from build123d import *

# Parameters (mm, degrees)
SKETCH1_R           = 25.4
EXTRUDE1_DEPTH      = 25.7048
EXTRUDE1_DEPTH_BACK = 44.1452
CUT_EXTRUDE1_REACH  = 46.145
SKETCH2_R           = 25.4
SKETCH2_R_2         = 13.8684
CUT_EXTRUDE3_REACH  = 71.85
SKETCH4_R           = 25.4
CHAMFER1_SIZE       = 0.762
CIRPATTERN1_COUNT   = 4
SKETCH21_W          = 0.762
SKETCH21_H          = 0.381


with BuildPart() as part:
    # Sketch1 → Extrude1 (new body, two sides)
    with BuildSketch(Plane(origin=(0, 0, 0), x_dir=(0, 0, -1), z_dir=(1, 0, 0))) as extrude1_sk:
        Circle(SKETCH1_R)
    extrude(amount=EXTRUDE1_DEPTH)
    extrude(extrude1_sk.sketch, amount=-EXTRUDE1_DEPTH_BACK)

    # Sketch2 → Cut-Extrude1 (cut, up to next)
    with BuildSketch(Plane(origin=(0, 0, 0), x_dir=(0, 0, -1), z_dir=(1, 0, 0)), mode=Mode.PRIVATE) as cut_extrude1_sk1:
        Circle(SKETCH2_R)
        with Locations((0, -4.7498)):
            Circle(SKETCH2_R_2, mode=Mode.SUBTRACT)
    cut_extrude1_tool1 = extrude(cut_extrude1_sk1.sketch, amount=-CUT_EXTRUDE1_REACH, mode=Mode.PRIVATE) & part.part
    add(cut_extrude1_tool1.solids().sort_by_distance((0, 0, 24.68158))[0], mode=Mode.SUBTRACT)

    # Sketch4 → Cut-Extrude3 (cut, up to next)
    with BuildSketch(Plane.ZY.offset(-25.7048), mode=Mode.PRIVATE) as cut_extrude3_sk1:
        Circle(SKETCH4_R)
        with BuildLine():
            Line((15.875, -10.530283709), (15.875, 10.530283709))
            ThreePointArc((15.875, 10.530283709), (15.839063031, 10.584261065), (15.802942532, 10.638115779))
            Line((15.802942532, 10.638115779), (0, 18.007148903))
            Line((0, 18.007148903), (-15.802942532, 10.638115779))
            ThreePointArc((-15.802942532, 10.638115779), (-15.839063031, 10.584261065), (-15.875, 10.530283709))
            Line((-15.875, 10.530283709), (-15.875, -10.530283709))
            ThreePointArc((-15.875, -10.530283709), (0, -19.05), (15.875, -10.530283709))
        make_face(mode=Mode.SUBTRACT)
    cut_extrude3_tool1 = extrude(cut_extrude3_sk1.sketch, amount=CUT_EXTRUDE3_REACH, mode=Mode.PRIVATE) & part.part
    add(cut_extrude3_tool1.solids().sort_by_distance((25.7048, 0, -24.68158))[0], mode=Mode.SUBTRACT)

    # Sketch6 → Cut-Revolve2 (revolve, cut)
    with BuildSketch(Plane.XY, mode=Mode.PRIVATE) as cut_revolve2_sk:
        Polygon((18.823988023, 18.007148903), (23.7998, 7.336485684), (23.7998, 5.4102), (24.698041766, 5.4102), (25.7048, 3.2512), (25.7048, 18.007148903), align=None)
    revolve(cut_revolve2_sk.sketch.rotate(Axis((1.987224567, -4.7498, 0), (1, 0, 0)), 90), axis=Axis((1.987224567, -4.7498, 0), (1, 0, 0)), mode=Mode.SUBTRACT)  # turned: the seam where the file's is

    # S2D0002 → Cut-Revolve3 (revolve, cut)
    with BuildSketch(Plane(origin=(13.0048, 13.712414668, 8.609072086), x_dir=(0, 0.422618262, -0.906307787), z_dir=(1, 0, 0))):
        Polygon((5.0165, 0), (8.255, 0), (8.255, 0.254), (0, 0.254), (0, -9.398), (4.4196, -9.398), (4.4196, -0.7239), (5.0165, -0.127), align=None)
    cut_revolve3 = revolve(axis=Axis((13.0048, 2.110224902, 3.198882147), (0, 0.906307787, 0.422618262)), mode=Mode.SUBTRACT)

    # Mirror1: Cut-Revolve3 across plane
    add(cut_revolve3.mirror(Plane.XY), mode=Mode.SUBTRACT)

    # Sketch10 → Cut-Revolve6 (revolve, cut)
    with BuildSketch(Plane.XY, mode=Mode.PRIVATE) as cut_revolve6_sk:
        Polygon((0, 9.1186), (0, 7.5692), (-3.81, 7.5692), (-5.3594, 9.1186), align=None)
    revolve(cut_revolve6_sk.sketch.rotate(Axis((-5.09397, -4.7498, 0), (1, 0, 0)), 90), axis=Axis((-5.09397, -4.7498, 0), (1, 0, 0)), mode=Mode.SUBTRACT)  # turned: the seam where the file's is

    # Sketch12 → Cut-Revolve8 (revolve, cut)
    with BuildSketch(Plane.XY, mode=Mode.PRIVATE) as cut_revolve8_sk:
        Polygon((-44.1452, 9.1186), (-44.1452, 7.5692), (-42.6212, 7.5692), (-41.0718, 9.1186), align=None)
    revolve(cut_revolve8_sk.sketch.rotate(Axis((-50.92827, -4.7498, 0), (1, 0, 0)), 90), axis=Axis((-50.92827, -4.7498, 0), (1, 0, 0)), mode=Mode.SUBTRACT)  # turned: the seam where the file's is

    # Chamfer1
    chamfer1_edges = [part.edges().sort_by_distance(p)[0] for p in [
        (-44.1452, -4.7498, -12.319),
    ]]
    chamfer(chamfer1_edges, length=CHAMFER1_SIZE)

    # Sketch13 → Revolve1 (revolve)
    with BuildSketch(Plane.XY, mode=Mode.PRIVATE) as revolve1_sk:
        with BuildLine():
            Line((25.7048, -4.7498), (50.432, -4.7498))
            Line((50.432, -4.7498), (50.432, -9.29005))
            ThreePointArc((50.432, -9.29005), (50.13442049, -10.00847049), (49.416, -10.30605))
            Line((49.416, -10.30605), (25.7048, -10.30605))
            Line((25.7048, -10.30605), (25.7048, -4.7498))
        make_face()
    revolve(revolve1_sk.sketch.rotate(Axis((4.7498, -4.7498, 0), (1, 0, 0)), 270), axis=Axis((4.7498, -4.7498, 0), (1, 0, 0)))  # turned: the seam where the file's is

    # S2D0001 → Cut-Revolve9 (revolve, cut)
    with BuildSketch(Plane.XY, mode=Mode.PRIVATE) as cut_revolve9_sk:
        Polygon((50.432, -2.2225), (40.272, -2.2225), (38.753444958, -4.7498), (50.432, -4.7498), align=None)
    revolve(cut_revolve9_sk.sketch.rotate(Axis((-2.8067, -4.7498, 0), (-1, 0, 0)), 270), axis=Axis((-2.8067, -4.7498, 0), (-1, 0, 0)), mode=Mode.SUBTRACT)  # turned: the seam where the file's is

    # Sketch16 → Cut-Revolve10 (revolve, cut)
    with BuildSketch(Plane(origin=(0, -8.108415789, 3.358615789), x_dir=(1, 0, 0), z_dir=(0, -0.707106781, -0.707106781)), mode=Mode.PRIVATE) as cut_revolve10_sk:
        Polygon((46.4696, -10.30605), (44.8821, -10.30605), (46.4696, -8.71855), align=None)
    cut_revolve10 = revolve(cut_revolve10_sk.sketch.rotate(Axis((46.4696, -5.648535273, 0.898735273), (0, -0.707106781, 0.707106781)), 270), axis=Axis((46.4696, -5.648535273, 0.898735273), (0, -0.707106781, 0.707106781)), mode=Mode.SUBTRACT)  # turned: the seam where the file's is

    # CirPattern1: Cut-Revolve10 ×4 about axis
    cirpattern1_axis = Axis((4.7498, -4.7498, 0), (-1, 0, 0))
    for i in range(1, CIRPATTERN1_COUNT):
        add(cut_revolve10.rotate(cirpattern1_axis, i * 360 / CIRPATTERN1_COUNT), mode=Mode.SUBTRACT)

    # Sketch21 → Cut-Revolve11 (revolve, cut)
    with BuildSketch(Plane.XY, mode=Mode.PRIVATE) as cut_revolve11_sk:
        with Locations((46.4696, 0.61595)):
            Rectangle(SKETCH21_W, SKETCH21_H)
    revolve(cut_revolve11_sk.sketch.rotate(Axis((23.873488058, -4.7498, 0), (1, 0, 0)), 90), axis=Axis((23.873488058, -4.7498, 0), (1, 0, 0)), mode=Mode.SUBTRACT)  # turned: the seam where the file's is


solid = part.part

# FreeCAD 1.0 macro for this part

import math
import FreeCAD as App
import Part
import Sketcher
from FreeCAD import Vector
Q = App.Units.Quantity


def edges_at(feature, points):
    """Names of the edges that pass closest to the given points."""
    edges = feature.Shape.Edges
    near = lambda p: min(range(len(edges)), key=lambda i: edges[i].distToShape(Part.Vertex(*p))[0])
    return sorted({f"Edge{near(p) + 1}" for p in points})


def add_polygon(sketch, points):
    """Adds a closed chain of lines whose ends are joined by coincident constraints."""
    first, n = sketch.GeometryCount, len(points)
    for a, b in zip(points, points[1:] + points[:1]):
        sketch.addGeometry(Part.LineSegment(App.Vector(*a, 0), App.Vector(*b, 0)), False)
    for i in range(n):
        sketch.addConstraint(Sketcher.Constraint("Coincident", first + i, 2, first + (i + 1) % n, 1))

doc = App.newDocument("Part")
params = doc.addObject("Spreadsheet::Sheet", "Params")
for row, (alias, value) in enumerate([
    ("sketch1_diameter", "2 in"),
    ("pad1_length", "1.012 in"),
    ("pad1_length2", "1.738 in"),
    ("sketch2_diameter", "2 in"),
    ("sketch2_diameter2", "1.092 in"),
    ("sketch3_diameter", "2 in"),
    ("sketch3_radius", "0.75 in"),
    ("groove_angle", "360 deg"),
    ("sketch5_length", "0.01 in"),
    ("sketch5_length2", "0.38 in"),
    ("sketch5_length3", "0.325 in"),
    ("sketch5_length4", "0.174 in"),
    ("sketch5_length5", "0.005 in"),
    ("groove2_angle", "360 deg"),
    ("sketch6_width", "0.15 in"),
    ("sketch6_width2", "0.211 in"),
    ("groove3_angle", "360 deg"),
    ("sketch7_width", "0.06 in"),
    ("sketch7_width2", "0.121 in"),
    ("groove4_angle", "360 deg"),
    ("chamfer_size", "0.03 in"),
    ("sketch8_radius", "0.04 in"),
    ("sketch8_height", "0.21875 in"),
    ("revolution_angle", "360 deg"),
    ("sketch9_width", "0.4 in"),
    ("groove5_angle", "360 deg"),
    ("sketch10_width", "0.0625 in"),
    ("groove6_angle", "360 deg"),
    ("sketch11_width", "0.03 in"),
    ("sketch11_height", "0.015 in"),
    ("groove7_angle", "360 deg"),
], start=1):
    params.set(f"A{row}", alias)
    params.set(f"B{row}", "=" + value)
    params.setAlias(f"B{row}", alias)

body = doc.addObject("PartDesign::Body", "Body")

sketch1 = doc.addObject("Sketcher::SketchObject", "Sketch")
body.addObject(sketch1)
sketch1.AttachmentSupport = (doc.YZ_Plane, [""])
sketch1.MapMode = "FlatFace"
sketch1.addGeometry(Part.Circle(Vector(0, 0, 0), Vector(0, 0, 1), 25.4), False)
sketch1.addConstraint([
    Sketcher.Constraint("Coincident", 0, 3, -1, 1),
    Sketcher.Constraint("Diameter", 0, Q("2 in")),
])
sketch1.setExpression("Constraints[1]", "Params.sketch1_diameter")
pad1 = doc.addObject("PartDesign::Pad", "Pad")
body.addObject(pad1)
pad1.Profile = sketch1
pad1.Type = "TwoLengths"
pad1.setExpression("Length", "Params.pad1_length")
pad1.setExpression("Length2", "Params.pad1_length2")

sketch2 = doc.addObject("Sketcher::SketchObject", "Sketch001")
body.addObject(sketch2)
sketch2.AttachmentSupport = (doc.YZ_Plane, [""])
sketch2.MapMode = "FlatFace"
sketch2.addGeometry([
    Part.Circle(Vector(0, 0, 0), Vector(0, 0, 1), 25.4),
    Part.Circle(Vector(-4.7498, 0, 0), Vector(0, 0, 1), 13.8684),
], False)
sketch2.addConstraint([
    Sketcher.Constraint("Coincident", 0, 3, -1, 1),
    Sketcher.Constraint("PointOnObject", 1, 3, -1),
    Sketcher.Constraint("Diameter", 0, Q("2 in")),
    Sketcher.Constraint("Diameter", 1, Q("1.092 in")),
    Sketcher.Constraint("DistanceX", 1, 3, -1, 1, Q("0.187 in")),
])
sketch2.setExpression("Constraints[2]", "Params.sketch2_diameter")
sketch2.setExpression("Constraints[3]", "Params.sketch2_diameter2")
pocket1 = doc.addObject("PartDesign::Pocket", "Pocket")
body.addObject(pocket1)
pocket1.Profile = sketch2
pocket1.Type = "UpToFirst"

sketch3 = doc.addObject("Sketcher::SketchObject", "Sketch002")
body.addObject(sketch3)
sketch3.AttachmentSupport = (doc.YZ_Plane, [""])
sketch3.MapMode = "FlatFace"
sketch3.AttachmentOffset = App.Placement(Vector(0, 0, 1.012 * 25.4), App.Rotation())
sketch3.addGeometry([
    Part.Circle(Vector(0, 0, 0), Vector(0, 0, 1), 25.4),
    Part.LineSegment(Vector(10.530284, 15.875, 0), Vector(-10.530284, 15.875, 0)),
    Part.ArcOfCircle(Part.Circle(Vector(0, 0, 0), Vector(0, 0, 1), 19.05), math.radians(123.55731), math.radians(236.44269)),
    Part.LineSegment(Vector(-10.530284, -15.875, 0), Vector(10.530284, -15.875, 0)),
    Part.ArcOfCircle(Part.Circle(Vector(-0.000006, 0.000009, 0), Vector(0, 0, 1), 19.050011), math.radians(-56.44269), math.radians(-56.052621)),
    Part.LineSegment(Vector(10.638116, -15.802943, 0), Vector(18.007149, 0, 0)),
    Part.LineSegment(Vector(18.007149, 0, 0), Vector(10.638116, 15.802943, 0)),
    Part.ArcOfCircle(Part.Circle(Vector(-0.000006, -0.000009, 0), Vector(0, 0, 1), 19.050011), math.radians(56.052621), math.radians(56.44269)),
], False)
sketch3.addConstraint([
    Sketcher.Constraint("Coincident", 1, 2, 2, 1),
    Sketcher.Constraint("Coincident", 2, 2, 3, 1),
    Sketcher.Constraint("Coincident", 3, 2, 4, 1),
    Sketcher.Constraint("Coincident", 4, 2, 5, 1),
    Sketcher.Constraint("Coincident", 5, 2, 6, 1),
    Sketcher.Constraint("Coincident", 6, 2, 7, 1),
    Sketcher.Constraint("Coincident", 7, 2, 1, 1),
    Sketcher.Constraint("Horizontal", 1),
    Sketcher.Constraint("Horizontal", 3),
    Sketcher.Constraint("Coincident", 0, 3, -1, 1),
    Sketcher.Constraint("Coincident", 2, 3, -1, 1),
    Sketcher.Constraint("Equal", 4, 7),
    Sketcher.Constraint("Symmetric", 1, 2, 3, 2, -1, 1),
    Sketcher.Constraint("Symmetric", 4, 3, 7, 3, -1),
    Sketcher.Constraint("PointOnObject", 5, 2, -1),
    Sketcher.Constraint("Vertical", 4, 2, 6, 2),
    Sketcher.Constraint("Diameter", 0, Q("2 in")),
    Sketcher.Constraint("Radius", 2, Q("0.75 in")),
    Sketcher.Constraint("Angle", 5, Q("65 deg")),
    Sketcher.Constraint("DistanceY", 2, 2, 1, 2, Q("1.25 in")),
    Sketcher.Constraint("Radius", 4, 19.050011),
    Sketcher.Constraint("DistanceX", -1, 1, 5, 2, 18.007149),
    Sketcher.Constraint("DistanceY", 4, 3, 1, 2, 15.874991),
])
sketch3.setExpression("Constraints[16]", "Params.sketch3_diameter")
sketch3.setExpression("Constraints[17]", "Params.sketch3_radius")
pocket2 = doc.addObject("PartDesign::Pocket", "Pocket001")
body.addObject(pocket2)
pocket2.Profile = sketch3
pocket2.Type = "UpToFirst"

sketch4 = doc.addObject("Sketcher::SketchObject", "Sketch003")
body.addObject(sketch4)
sketch4.AttachmentSupport = (doc.XY_Plane, [""])
sketch4.MapMode = "FlatFace"
add_polygon(sketch4, [(18.823988, 18.007149), (23.7998, 7.336486), (23.7998, 5.4102), (24.698042, 5.4102), (25.7048, 3.2512), (25.7048, 18.007149)])
sketch4.addGeometry(Part.LineSegment(Vector(18.823988, -4.7498, 0), Vector(25.7048, -4.7498, 0)), True)
sketch4.addConstraint([
    Sketcher.Constraint("Vertical", 1),
    Sketcher.Constraint("Horizontal", 2),
    Sketcher.Constraint("Vertical", 4),
    Sketcher.Constraint("Horizontal", 5),
    Sketcher.Constraint("Horizontal", 6),
    Sketcher.Constraint("Parallel", 0, 3),
    Sketcher.Constraint("Vertical", 5, 2, 6, 1),
    Sketcher.Constraint("Vertical", 4, 2, 6, 2),
    Sketcher.Constraint("Angle", 0, Q("-65 deg")),
    Sketcher.Constraint("DistanceY", 6, 1, 1, 2, Q("0.4 in")),
    Sketcher.Constraint("DistanceX", -1, 1, 0, 2, Q("0.937 in")),
    Sketcher.Constraint("DistanceY", -1, 1, 1, 2, Q("0.213 in")),
    Sketcher.Constraint("DistanceX", -1, 1, 3, 2, Q("1.012 in")),
    Sketcher.Constraint("DistanceY", -1, 1, 3, 2, Q("0.128 in")),
    Sketcher.Constraint("DistanceX", 5, 2, 5, 1, 6.880812),
    Sketcher.Constraint("DistanceY", 4, 1, 4, 2, 14.755949),
])
groove = doc.addObject("PartDesign::Groove", "Groove")
body.addObject(groove)
groove.Profile = sketch4
groove.ReferenceAxis = (sketch4, ["Axis0"])
groove.setExpression("Angle", "Params.groove_angle")

sketch5 = doc.addObject("Sketcher::SketchObject", "Sketch004")
body.addObject(sketch5)
sketch5.AttachmentSupport = (doc.YZ_Plane, [""])
sketch5.MapMode = "FlatFace"
sketch5.AttachmentOffset = App.Placement(Vector(0, 0, 0.512 * 25.4), App.Rotation())
add_polygon(sketch5, [(15.832479, 4.062579), (17.201128, 1.127501), (17.431331, 1.234846), (13.942617, 8.716417), (5.194934, 4.637306), (7.062738, 0.631788), (14.924142, 4.297621), (15.717378, 4.008907)])
sketch5.addGeometry(Part.LineSegment(Vector(5.194934, 4.637306, 0), Vector(13.942617, 8.716417, 0)), True)
sketch5.addConstraint([
    Sketcher.Constraint("Coincident", 8, 1, 3, 2),
    Sketcher.Constraint("Coincident", 8, 2, 2, 2),
    Sketcher.Constraint("Perpendicular", 0, 1),
    Sketcher.Constraint("Perpendicular", 1, 2),
    Sketcher.Constraint("Perpendicular", 2, 3),
    Sketcher.Constraint("Perpendicular", 3, 4),
    Sketcher.Constraint("Perpendicular", 4, 5),
    Sketcher.Constraint("Parallel", 5, 7),
    Sketcher.Constraint("Angle", 0, Q("-65 deg")),
    Sketcher.Constraint("Angle", 6, Q("-20 deg")),
    Sketcher.Constraint("Distance", 1, Q("0.01 in")),
    Sketcher.Constraint("Distance", 3, Q("0.38 in")),
    Sketcher.Constraint("Distance", 2, Q("0.325 in")),
    Sketcher.Constraint("Distance", 4, Q("0.174 in")),
    Sketcher.Constraint("Distance", 7, Q("0.005 in")),
    Sketcher.Constraint("Distance", 0, Q("0.1275 in")),
    Sketcher.Constraint("DistanceY", -1, 1, 0, 2, 1.127501),
    Sketcher.Constraint("DistanceX", -1, 1, 0, 2, 17.201128),
])
sketch5.setExpression("Constraints[18]", "Params.sketch5_length")
sketch5.setExpression("Constraints[19]", "Params.sketch5_length2")
sketch5.setExpression("Constraints[20]", "Params.sketch5_length3")
sketch5.setExpression("Constraints[21]", "Params.sketch5_length4")
sketch5.setExpression("Constraints[22]", "Params.sketch5_length5")
groove2 = doc.addObject("PartDesign::Groove", "Groove001")
body.addObject(groove2)
groove2.Profile = sketch5
groove2.ReferenceAxis = (sketch5, ["Axis0"])
groove2.setExpression("Angle", "Params.groove2_angle")
doc.recompute()

mirrored = doc.addObject("PartDesign::Mirrored", "Mirrored")
body.addObject(mirrored)
mirrored.Originals = [groove2]
mirrored.MirrorPlane = (doc.XY_Plane, [""])
body.Tip = mirrored

sketch6 = doc.addObject("Sketcher::SketchObject", "Sketch005")
body.addObject(sketch6)
sketch6.AttachmentSupport = (doc.XY_Plane, [""])
sketch6.MapMode = "FlatFace"
add_polygon(sketch6, [(0, 7.5692), (0, 9.1186), (-5.3594, 9.1186), (-3.81, 7.5692)])
sketch6.addGeometry(Part.LineSegment(Vector(-5.3594, -4.7498, 0), Vector(0, -4.7498, 0)), True)
sketch6.addConstraint([
    Sketcher.Constraint("Vertical", 0),
    Sketcher.Constraint("Horizontal", 1),
    Sketcher.Constraint("Horizontal", 3),
    Sketcher.Constraint("Horizontal", 4),
    Sketcher.Constraint("PointOnObject", 0, 2, -2),
    Sketcher.Constraint("PointOnObject", 4, 2, -2),
    Sketcher.Constraint("Vertical", 1, 2, 4, 1),
    Sketcher.Constraint("Angle", 2, Q("-45 deg")),
    Sketcher.Constraint("DistanceX", 3, 1, 3, 2, Q("0.15 in")),
    Sketcher.Constraint("DistanceX", 1, 2, 1, 1, Q("0.211 in")),
    Sketcher.Constraint("DistanceY", -1, 1, 0, 2, Q("0.359 in")),
    Sketcher.Constraint("DistanceY", 4, 1, -1, 1, Q("0.187 in")),
])
sketch6.setExpression("Constraints[12]", "Params.sketch6_width")
sketch6.setExpression("Constraints[13]", "Params.sketch6_width2")
groove3 = doc.addObject("PartDesign::Groove", "Groove002")
body.addObject(groove3)
groove3.Profile = sketch6
groove3.ReferenceAxis = (sketch6, ["Axis0"])
groove3.setExpression("Angle", "Params.groove3_angle")

sketch7 = doc.addObject("Sketcher::SketchObject", "Sketch006")
body.addObject(sketch7)
sketch7.AttachmentSupport = (doc.XY_Plane, [""])
sketch7.MapMode = "FlatFace"
add_polygon(sketch7, [(-44.1452, 9.1186), (-44.1452, 7.5692), (-42.6212, 7.5692), (-41.0718, 9.1186)])
sketch7.addGeometry(Part.LineSegment(Vector(-44.1452, -4.7498, 0), Vector(-41.0718, -4.7498, 0)), True)
sketch7.addConstraint([
    Sketcher.Constraint("Vertical", 0),
    Sketcher.Constraint("Horizontal", 1),
    Sketcher.Constraint("Horizontal", 3),
    Sketcher.Constraint("Horizontal", 4),
    Sketcher.Constraint("Vertical", 3, 2, 4, 1),
    Sketcher.Constraint("Vertical", 2, 2, 4, 2),
    Sketcher.Constraint("Angle", 2, Q("45 deg")),
    Sketcher.Constraint("DistanceX", 1, 1, 1, 2, Q("0.06 in")),
    Sketcher.Constraint("DistanceX", 3, 2, 3, 1, Q("0.121 in")),
    Sketcher.Constraint("DistanceX", 0, 2, -1, 1, Q("1.738 in")),
    Sketcher.Constraint("DistanceY", -1, 1, 0, 2, Q("0.298 in")),
    Sketcher.Constraint("DistanceY", 4, 1, -1, 1, Q("0.187 in")),
])
sketch7.setExpression("Constraints[11]", "Params.sketch7_width")
sketch7.setExpression("Constraints[12]", "Params.sketch7_width2")
groove4 = doc.addObject("PartDesign::Groove", "Groove003")
body.addObject(groove4)
groove4.Profile = sketch7
groove4.ReferenceAxis = (sketch7, ["Axis0"])
groove4.setExpression("Angle", "Params.groove4_angle")
doc.recompute()

chamfer = doc.addObject("PartDesign::Chamfer", "Chamfer")
body.addObject(chamfer)
chamfer.Base = (groove4, edges_at(groove4, [(-44.145, -4.75, -12.319)]))
chamfer.setExpression("Size", "Params.chamfer_size")

sketch8 = doc.addObject("Sketcher::SketchObject", "Sketch007")
body.addObject(sketch8)
sketch8.AttachmentSupport = (doc.XY_Plane, [""])
sketch8.MapMode = "FlatFace"
sketch8.addGeometry([
    Part.LineSegment(Vector(50.432, -4.7498, 0), Vector(25.7048, -4.7498, 0)),
    Part.LineSegment(Vector(25.7048, -4.7498, 0), Vector(25.7048, -10.30605, 0)),
    Part.LineSegment(Vector(25.7048, -10.30605, 0), Vector(49.416, -10.30605, 0)),
    Part.ArcOfCircle(Part.Circle(Vector(49.416, -9.29005, 0), Vector(0, 0, 1), 1.016), math.radians(-90), math.radians(0)),
    Part.LineSegment(Vector(50.432, -9.29005, 0), Vector(50.432, -4.7498, 0)),
], False)
sketch8.addGeometry(Part.LineSegment(Vector(25.7048, -4.7498, 0), Vector(50.432, -4.7498, 0)), True)
sketch8.addConstraint([
    Sketcher.Constraint("Coincident", 0, 2, 1, 1),
    Sketcher.Constraint("Coincident", 1, 2, 2, 1),
    Sketcher.Constraint("Tangent", 2, 2, 3, 1),
    Sketcher.Constraint("Tangent", 3, 2, 4, 1),
    Sketcher.Constraint("Coincident", 4, 2, 0, 1),
    Sketcher.Constraint("Horizontal", 0),
    Sketcher.Constraint("Vertical", 1),
    Sketcher.Constraint("Horizontal", 2),
    Sketcher.Constraint("Vertical", 4),
    Sketcher.Constraint("Horizontal", 5),
    Sketcher.Constraint("Coincident", 5, 1, 0, 2),
    Sketcher.Constraint("Vertical", 3, 2, 5, 2),
    Sketcher.Constraint("Radius", 3, Q("0.04 in")),
    Sketcher.Constraint("DistanceY", 1, 2, 1, 1, Q("0.21875 in")),
    Sketcher.Constraint("DistanceX", -1, 1, 0, 2, Q("1.012 in")),
    Sketcher.Constraint("DistanceY", 0, 2, -1, 1, Q("0.187 in")),
    Sketcher.Constraint("DistanceX", 0, 2, 0, 1, 24.7272),
])
sketch8.setExpression("Constraints[12]", "Params.sketch8_radius")
sketch8.setExpression("Constraints[13]", "Params.sketch8_height")
revolution = doc.addObject("PartDesign::Revolution", "Revolution")
body.addObject(revolution)
revolution.Profile = sketch8
revolution.ReferenceAxis = (sketch8, ["Axis0"])
revolution.setExpression("Angle", "Params.revolution_angle")

sketch9 = doc.addObject("Sketcher::SketchObject", "Sketch008")
body.addObject(sketch9)
sketch9.AttachmentSupport = (doc.XY_Plane, [""])
sketch9.MapMode = "FlatFace"
add_polygon(sketch9, [(50.432, -2.2225), (40.272, -2.2225), (38.753445, -4.7498), (50.432, -4.7498)])
sketch9.addGeometry(Part.LineSegment(Vector(50.432, -4.7498, 0), Vector(38.753445, -4.7498, 0)), True)
sketch9.addConstraint([
    Sketcher.Constraint("Horizontal", 0),
    Sketcher.Constraint("Horizontal", 2),
    Sketcher.Constraint("Vertical", 3),
    Sketcher.Constraint("Horizontal", 4),
    Sketcher.Constraint("Coincident", 4, 1, 2, 2),
    Sketcher.Constraint("Equal", 2, 4),
    Sketcher.Constraint("DistanceX", 0, 2, 0, 1, Q("0.4 in")),
    Sketcher.Constraint("Angle", 1, Q("-121 deg")),
    Sketcher.Constraint("DistanceY", 3, 1, 3, 2, Q("0.0995 in")),
    Sketcher.Constraint("DistanceY", 1, 2, -1, 1, Q("0.187 in")),
    Sketcher.Constraint("DistanceX", -1, 1, 0, 2, 40.272),
])
sketch9.setExpression("Constraints[10]", "Params.sketch9_width")
groove5 = doc.addObject("PartDesign::Groove", "Groove004")
body.addObject(groove5)
groove5.Profile = sketch9
groove5.ReferenceAxis = (sketch9, ["Axis0"])
groove5.setExpression("Angle", "Params.groove5_angle")

sketch10 = doc.addObject("Sketcher::SketchObject", "Sketch009")
body.addObject(sketch10)
sketch10.Placement = App.Placement(Vector(0, -8.108416, 3.358616), App.Rotation(Vector(1, 0, 0), Vector(0, -0.707106781, 0.707106781), Vector(0, -0.707106781, -0.707106781), "ZXY"))
add_polygon(sketch10, [(44.8821, -10.30605), (46.4696, -10.30605), (46.4696, -8.71855)])
sketch10.addGeometry(Part.LineSegment(Vector(46.4696, -10.30605, 0), Vector(46.4696, -8.71855, 0)), True)
sketch10.addConstraint([
    Sketcher.Constraint("Horizontal", 0),
    Sketcher.Constraint("Vertical", 1),
    Sketcher.Constraint("Vertical", 3),
    Sketcher.Constraint("Coincident", 3, 1, 0, 2),
    Sketcher.Constraint("Equal", 0, 1),
    Sketcher.Constraint("Equal", 1, 3),
    Sketcher.Constraint("DistanceX", 0, 1, 0, 2, Q("0.0625 in")),
    Sketcher.Constraint("DistanceX", -1, 1, 0, 2, 46.4696),
    Sketcher.Constraint("DistanceY", 0, 2, -1, 1, 10.30605),
])
sketch10.setExpression("Constraints[9]", "Params.sketch10_width")
groove6 = doc.addObject("PartDesign::Groove", "Groove005")
body.addObject(groove6)
groove6.Profile = sketch10
groove6.ReferenceAxis = (sketch10, ["Axis0"])
groove6.setExpression("Angle", "Params.groove6_angle")
doc.recompute()

datumline = doc.addObject("PartDesign::Line", "DatumLine")
body.addObject(datumline)
datumline.Placement = App.Placement(Vector(0, -4.7498, 0), App.Rotation(Vector(0, 0, 1), Vector(-1, 0, 0)))
polarpattern = doc.addObject("PartDesign::PolarPattern", "PolarPattern")
body.addObject(polarpattern)
polarpattern.Originals = [groove6]
polarpattern.Axis = (datumline, [""])
polarpattern.Angle = 360
polarpattern.Occurrences = 4
body.Tip = polarpattern

sketch11 = doc.addObject("Sketcher::SketchObject", "Sketch010")
body.addObject(sketch11)
sketch11.AttachmentSupport = (doc.XY_Plane, [""])
sketch11.MapMode = "FlatFace"
add_polygon(sketch11, [(46.0886, 0.80645), (46.0886, 0.42545), (46.8506, 0.42545), (46.8506, 0.80645)])
sketch11.addGeometry(Part.LineSegment(Vector(46.0886, -4.7498, 0), Vector(46.8506, -4.7498, 0)), True)
sketch11.addConstraint([
    Sketcher.Constraint("Vertical", 0),
    Sketcher.Constraint("Horizontal", 1),
    Sketcher.Constraint("Vertical", 2),
    Sketcher.Constraint("Horizontal", 3),
    Sketcher.Constraint("Horizontal", 4),
    Sketcher.Constraint("Vertical", 3, 2, 4, 1),
    Sketcher.Constraint("Vertical", 2, 2, 4, 2),
    Sketcher.Constraint("DistanceX", 1, 1, 1, 2, Q("0.03 in")),
    Sketcher.Constraint("DistanceY", 0, 2, 0, 1, Q("0.015 in")),
    Sketcher.Constraint("DistanceY", 4, 1, -1, 1, Q("0.187 in")),
    Sketcher.Constraint("DistanceY", 4, 1, 3, 2, Q("0.21875 in")),
    Sketcher.Constraint("DistanceX", -1, 1, 0, 2, 46.0886),
])
sketch11.setExpression("Constraints[11]", "Params.sketch11_width")
sketch11.setExpression("Constraints[12]", "Params.sketch11_height")
groove7 = doc.addObject("PartDesign::Groove", "Groove006")
body.addObject(groove7)
groove7.Profile = sketch11
groove7.ReferenceAxis = (sketch11, ["Axis0"])
groove7.setExpression("Angle", "Params.groove7_angle")

doc.recompute()
